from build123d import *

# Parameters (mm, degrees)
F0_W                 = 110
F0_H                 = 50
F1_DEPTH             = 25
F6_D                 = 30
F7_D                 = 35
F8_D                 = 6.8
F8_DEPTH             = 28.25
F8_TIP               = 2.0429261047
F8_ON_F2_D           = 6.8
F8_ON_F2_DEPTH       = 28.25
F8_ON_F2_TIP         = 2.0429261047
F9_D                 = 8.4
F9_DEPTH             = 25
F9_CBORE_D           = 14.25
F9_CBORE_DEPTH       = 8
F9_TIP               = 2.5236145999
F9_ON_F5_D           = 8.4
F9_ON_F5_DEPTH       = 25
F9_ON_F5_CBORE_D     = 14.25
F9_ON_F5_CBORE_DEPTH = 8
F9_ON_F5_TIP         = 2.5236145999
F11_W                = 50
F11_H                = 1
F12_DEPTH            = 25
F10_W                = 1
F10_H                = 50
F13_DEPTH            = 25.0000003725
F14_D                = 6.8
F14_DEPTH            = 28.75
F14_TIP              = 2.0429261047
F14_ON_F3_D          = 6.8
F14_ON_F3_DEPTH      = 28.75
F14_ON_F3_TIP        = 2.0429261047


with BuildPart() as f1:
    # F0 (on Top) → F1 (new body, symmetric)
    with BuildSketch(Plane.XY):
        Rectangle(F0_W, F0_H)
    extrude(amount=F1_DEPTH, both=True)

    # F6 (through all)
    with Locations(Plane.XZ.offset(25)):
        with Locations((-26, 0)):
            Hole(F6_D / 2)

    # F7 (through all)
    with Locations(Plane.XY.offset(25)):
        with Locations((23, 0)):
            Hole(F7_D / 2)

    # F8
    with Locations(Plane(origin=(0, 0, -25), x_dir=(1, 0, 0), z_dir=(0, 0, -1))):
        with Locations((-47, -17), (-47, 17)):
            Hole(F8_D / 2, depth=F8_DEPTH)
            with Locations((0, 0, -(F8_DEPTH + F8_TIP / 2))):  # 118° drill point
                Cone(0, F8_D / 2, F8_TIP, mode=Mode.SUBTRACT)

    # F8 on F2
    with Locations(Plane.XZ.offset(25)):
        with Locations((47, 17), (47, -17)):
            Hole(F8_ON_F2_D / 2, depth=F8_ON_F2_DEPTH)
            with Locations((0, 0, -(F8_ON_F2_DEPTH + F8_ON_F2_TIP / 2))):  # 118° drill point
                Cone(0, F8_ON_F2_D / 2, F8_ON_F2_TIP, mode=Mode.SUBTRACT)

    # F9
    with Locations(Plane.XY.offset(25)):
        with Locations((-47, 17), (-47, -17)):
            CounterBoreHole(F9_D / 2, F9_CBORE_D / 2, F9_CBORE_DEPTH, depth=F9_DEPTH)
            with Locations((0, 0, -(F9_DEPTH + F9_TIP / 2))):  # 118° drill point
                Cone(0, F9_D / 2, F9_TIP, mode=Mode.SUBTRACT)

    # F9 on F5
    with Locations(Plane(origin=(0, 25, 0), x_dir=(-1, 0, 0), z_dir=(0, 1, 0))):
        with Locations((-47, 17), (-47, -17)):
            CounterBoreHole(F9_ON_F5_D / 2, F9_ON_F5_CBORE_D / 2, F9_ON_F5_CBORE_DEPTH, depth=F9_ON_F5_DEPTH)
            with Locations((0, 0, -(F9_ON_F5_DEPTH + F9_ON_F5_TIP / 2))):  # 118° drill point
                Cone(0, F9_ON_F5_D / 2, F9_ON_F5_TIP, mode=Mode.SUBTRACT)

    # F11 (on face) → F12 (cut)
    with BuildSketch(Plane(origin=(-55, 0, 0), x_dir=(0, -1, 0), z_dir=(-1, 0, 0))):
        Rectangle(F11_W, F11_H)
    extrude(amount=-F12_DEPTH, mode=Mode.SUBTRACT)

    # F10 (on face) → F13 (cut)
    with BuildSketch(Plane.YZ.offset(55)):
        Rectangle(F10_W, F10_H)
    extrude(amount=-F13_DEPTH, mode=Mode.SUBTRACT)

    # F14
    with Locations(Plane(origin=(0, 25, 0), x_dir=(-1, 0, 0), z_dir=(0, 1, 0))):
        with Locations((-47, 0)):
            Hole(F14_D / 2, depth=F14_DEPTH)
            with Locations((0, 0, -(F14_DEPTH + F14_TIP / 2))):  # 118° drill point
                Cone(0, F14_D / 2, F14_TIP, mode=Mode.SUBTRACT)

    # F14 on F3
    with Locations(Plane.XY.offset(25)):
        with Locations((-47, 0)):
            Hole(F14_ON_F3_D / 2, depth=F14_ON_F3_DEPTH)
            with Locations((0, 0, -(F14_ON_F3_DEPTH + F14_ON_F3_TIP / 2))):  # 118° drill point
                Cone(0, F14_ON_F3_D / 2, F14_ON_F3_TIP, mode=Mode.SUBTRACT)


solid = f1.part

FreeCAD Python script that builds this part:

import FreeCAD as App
import Part
import Sketcher

V = App.Vector
Q = App.Units.Quantity


def add_polygon(sketch, points):
    """Adds a closed chain of lines whose ends are joined by coincident constraints."""
    first, n = sketch.GeometryCount, len(points)
    for a, b in zip(points, points[1:] + points[:1]):
        sketch.addGeometry(Part.LineSegment(App.Vector(*a, 0), App.Vector(*b, 0)), False)
    for i in range(n):
        sketch.addConstraint(Sketcher.Constraint("Coincident", first + i, 2, first + (i + 1) % n, 1))

doc = App.newDocument("Part")
body = doc.addObject("PartDesign::Body", "Body")

# Sketch on XY plane
sketch1 = body.newObject("Sketcher::SketchObject", "Sketch")
sketch1.AttachmentSupport = (doc.getObject("XY_Plane"), [""])
sketch1.MapMode = "FlatFace"
add_polygon(sketch1, [(-55, 25), (-55, -25), (55, -25), (55, 25)])  # lines 0-3
sketch1.addConstraint(Sketcher.Constraint("Vertical", 0))
sketch1.addConstraint(Sketcher.Constraint("Horizontal", 1))
sketch1.addConstraint(Sketcher.Constraint("Vertical", 2))
sketch1.addConstraint(Sketcher.Constraint("Horizontal", 3))
sketch1.addConstraint(Sketcher.Constraint("Symmetric", 0, 2, 2, 2, -1, 1))
sketch1.addConstraint(Sketcher.Constraint("DistanceX", 1, 1, 1, 2, Q("110 mm")))
sketch1.addConstraint(Sketcher.Constraint("DistanceY", 0, 2, 0, 1, Q("50 mm")))
pad1 = body.newObject("PartDesign::Pad", "Pad")
pad1.Profile = sketch1
pad1.Length = 50
pad1.Midplane = True

# Sketch on XZ plane
sketch2 = body.newObject("Sketcher::SketchObject", "Sketch001")
sketch2.AttachmentSupport = (doc.getObject("XZ_Plane"), [""])
sketch2.MapMode = "FlatFace"
sketch2.AttachmentOffset = App.Placement(V(0, 0, 25), App.Rotation())
sketch2.addGeometry(Part.Circle(V(-26, 0, 0), V(0, 0, 1), 15), False)
sketch2.addConstraint(Sketcher.Constraint("PointOnObject", 0, 3, -1))
sketch2.addConstraint(Sketcher.Constraint("Diameter", 0, Q("30 mm")))
sketch2.addConstraint(Sketcher.Constraint("DistanceX", 0, 3, -1, 1, Q("26 mm")))
doc.recompute()
hole = body.newObject("PartDesign::Hole", "Hole")
hole.Profile = sketch2
hole.ThreadType = "None"
hole.Diameter = 30
hole.DepthType = "ThroughAll"

# Sketch on XY plane
sketch3 = body.newObject("Sketcher::SketchObject", "Sketch002")
sketch3.AttachmentSupport = (doc.getObject("XY_Plane"), [""])
sketch3.MapMode = "FlatFace"
sketch3.AttachmentOffset = App.Placement(V(0, 0, 25), App.Rotation())
sketch3.addGeometry(Part.Circle(V(23, 0, 0), V(0, 0, 1), 18), False)
sketch3.addConstraint(Sketcher.Constraint("PointOnObject", 0, 3, -1))
sketch3.addConstraint(Sketcher.Constraint("Diameter", 0, Q("35 mm")))
sketch3.addConstraint(Sketcher.Constraint("DistanceX", -1, 1, 0, 3, Q("23 mm")))
doc.recompute()
hole2 = body.newObject("PartDesign::Hole", "Hole001")
hole2.Profile = sketch3
hole2.ThreadType = "None"
hole2.Diameter = 35
hole2.DepthType = "ThroughAll"

# Sketch on XY plane
sketch4 = body.newObject("Sketcher::SketchObject", "Sketch003")
sketch4.AttachmentSupport = (doc.getObject("XY_Plane"), [""])
sketch4.MapMode = "FlatFace"
sketch4.AttachmentOffset = App.Placement(V(0, 0, -25), App.Rotation())
sketch4.addGeometry(Part.Circle(V(-47, 17, 0), V(0, 0, 1), 3.4), False)
sketch4.addGeometry(Part.Circle(V(-47, -17, 0), V(0, 0, 1), 3.4), False)
sketch4.addConstraint(Sketcher.Constraint("Equal", 0, 1))
sketch4.addConstraint(Sketcher.Constraint("Symmetric", 0, 3, 1, 3, -1))
sketch4.addConstraint(Sketcher.Constraint("Diameter", 0, Q("6.8 mm")))
sketch4.addConstraint(Sketcher.Constraint("DistanceX", 0, 3, -1, 1, Q("47 mm")))
sketch4.addConstraint(Sketcher.Constraint("DistanceY", -1, 1, 0, 3, Q("17 mm")))
doc.recompute()
hole3 = body.newObject("PartDesign::Hole", "Hole002")
hole3.Profile = sketch4
hole3.ThreadType = "None"
hole3.Diameter = 6.8
hole3.DepthType = "Dimension"
hole3.Depth = 28.25
hole3.DrillPoint = "Angled"
hole3.DrillPointAngle = 118
hole3.Reversed = True

# Sketch on XZ plane
sketch5 = body.newObject("Sketcher::SketchObject", "Sketch004")
sketch5.AttachmentSupport = (doc.getObject("XZ_Plane"), [""])
sketch5.MapMode = "FlatFace"
sketch5.AttachmentOffset = App.Placement(V(0, 0, 25), App.Rotation())
sketch5.addGeometry(Part.Circle(V(47, 17, 0), V(0, 0, 1), 3.4), False)
sketch5.addGeometry(Part.Circle(V(47, -17, 0), V(0, 0, 1), 3.4), False)
sketch5.addConstraint(Sketcher.Constraint("Equal", 0, 1))
sketch5.addConstraint(Sketcher.Constraint("Symmetric", 0, 3, 1, 3, -1))
sketch5.addConstraint(Sketcher.Constraint("Diameter", 0, Q("6.8 mm")))
sketch5.addConstraint(Sketcher.Constraint("DistanceX", -1, 1, 0, 3, Q("47 mm")))
sketch5.addConstraint(Sketcher.Constraint("DistanceY", -1, 1, 0, 3, Q("17 mm")))
doc.recompute()
hole4 = body.newObject("PartDesign::Hole", "Hole003")
hole4.Profile = sketch5
hole4.ThreadType = "None"
hole4.Diameter = 6.8
hole4.DepthType = "Dimension"
hole4.Depth = 28.25
hole4.DrillPoint = "Angled"
hole4.DrillPointAngle = 118

# Sketch on XY plane
sketch6 = body.newObject("Sketcher::SketchObject", "Sketch005")
sketch6.AttachmentSupport = (doc.getObject("XY_Plane"), [""])
sketch6.MapMode = "FlatFace"
sketch6.AttachmentOffset = App.Placement(V(0, 0, 25), App.Rotation())
sketch6.addGeometry(Part.Circle(V(-47, 17, 0), V(0, 0, 1), 4.2), False)
sketch6.addGeometry(Part.Circle(V(-47, -17, 0), V(0, 0, 1), 4.2), False)
sketch6.addConstraint(Sketcher.Constraint("Equal", 0, 1))
sketch6.addConstraint(Sketcher.Constraint("Symmetric", 0, 3, 1, 3, -1))
sketch6.addConstraint(Sketcher.Constraint("Diameter", 0, Q("8.4 mm")))
sketch6.addConstraint(Sketcher.Constraint("DistanceX", 0, 3, -1, 1, Q("47 mm")))
sketch6.addConstraint(Sketcher.Constraint("DistanceY", -1, 1, 0, 3, Q("17 mm")))
doc.recompute()
hole5 = body.newObject("PartDesign::Hole", "Hole004")
hole5.Profile = sketch6
hole5.ThreadType = "None"
hole5.Diameter = 8.4
hole5.DepthType = "Dimension"
hole5.Depth = 25
hole5.DrillPoint = "Angled"
hole5.DrillPointAngle = 118
hole5.HoleCutType = "Counterbore"
hole5.HoleCutDiameter = 14.25
hole5.HoleCutDepth = 8

# Sketch on XZ plane
sketch7 = body.newObject("Sketcher::SketchObject", "Sketch006")
sketch7.AttachmentSupport = (doc.getObject("XZ_Plane"), [""])
sketch7.MapMode = "FlatFace"
sketch7.AttachmentOffset = App.Placement(V(0, 0, -25), App.Rotation())
sketch7.addGeometry(Part.Circle(V(47, 17, 0), V(0, 0, 1), 4.2), False)
sketch7.addGeometry(Part.Circle(V(47, -17, 0), V(0, 0, 1), 4.2), False)
sketch7.addConstraint(Sketcher.Constraint("Equal", 0, 1))
sketch7.addConstraint(Sketcher.Constraint("Symmetric", 0, 3, 1, 3, -1))
sketch7.addConstraint(Sketcher.Constraint("Diameter", 0, Q("8.4 mm")))
sketch7.addConstraint(Sketcher.Constraint("DistanceX", -1, 1, 0, 3, Q("47 mm")))
sketch7.addConstraint(Sketcher.Constraint("DistanceY", -1, 1, 0, 3, Q("17 mm")))
doc.recompute()
hole6 = body.newObject("PartDesign::Hole", "Hole005")
hole6.Profile = sketch7
hole6.ThreadType = "None"
hole6.Diameter = 8.4
hole6.DepthType = "Dimension"
hole6.Depth = 25
hole6.DrillPoint = "Angled"
hole6.DrillPointAngle = 118
hole6.HoleCutType = "Counterbore"
hole6.HoleCutDiameter = 14.25
hole6.HoleCutDepth = 8
hole6.Reversed = True

# Sketch on YZ plane
sketch8 = body.newObject("Sketcher::SketchObject", "Sketch007")
sketch8.AttachmentSupport = (doc.getObject("YZ_Plane"), [""])
sketch8.MapMode = "FlatFace"
sketch8.AttachmentOffset = App.Placement(V(0, 0, -55), App.Rotation())
add_polygon(sketch8, [(25, 0.5), (25, -0.5), (-25, -0.5), (-25, 0.5)])  # lines 0-3
sketch8.addConstraint(Sketcher.Constraint("Vertical", 0))
sketch8.addConstraint(Sketcher.Constraint("Horizontal", 1))
sketch8.addConstraint(Sketcher.Constraint("Vertical", 2))
sketch8.addConstraint(Sketcher.Constraint("Horizontal", 3))
sketch8.addConstraint(Sketcher.Constraint("Symmetric", 0, 2, 2, 2, -1, 1))
sketch8.addConstraint(Sketcher.Constraint("DistanceX", 1, 2, 1, 1, Q("50 mm")))
sketch8.addConstraint(Sketcher.Constraint("DistanceY", 0, 2, 0, 1, Q("1 mm")))
pocket1 = body.newObject("PartDesign::Pocket", "Pocket")
pocket1.Profile = sketch8
pocket1.Length = 25
pocket1.Reversed = True

# Sketch on YZ plane
sketch9 = body.newObject("Sketcher::SketchObject", "Sketch008")
sketch9.AttachmentSupport = (doc.getObject("YZ_Plane"), [""])
sketch9.MapMode = "FlatFace"
sketch9.AttachmentOffset = App.Placement(V(0, 0, 55), App.Rotation())
add_polygon(sketch9, [(-0.5, 25), (-0.5, -25), (0.5, -25), (0.5, 25)])  # lines 0-3
sketch9.addConstraint(Sketcher.Constraint("Vertical", 0))
sketch9.addConstraint(Sketcher.Constraint("Horizontal", 1))
sketch9.addConstraint(Sketcher.Constraint("Vertical", 2))
sketch9.addConstraint(Sketcher.Constraint("Horizontal", 3))
sketch9.addConstraint(Sketcher.Constraint("Symmetric", 0, 2, 2, 2, -1, 1))
sketch9.addConstraint(Sketcher.Constraint("DistanceX", 1, 1, 1, 2, Q("1 mm")))
sketch9.addConstraint(Sketcher.Constraint("DistanceY", 0, 2, 0, 1, Q("50 mm")))
pocket2 = body.newObject("PartDesign::Pocket", "Pocket001")
pocket2.Profile = sketch9
pocket2.Length = 25

# Sketch on XZ plane
sketch10 = body.newObject("Sketcher::SketchObject", "Sketch009")
sketch10.AttachmentSupport = (doc.getObject("XZ_Plane"), [""])
sketch10.MapMode = "FlatFace"
sketch10.AttachmentOffset = App.Placement(V(0, 0, -25), App.Rotation())
sketch10.addGeometry(Part.Circle(V(47, 0, 0), V(0, 0, 1), 3.4), False)
sketch10.addConstraint(Sketcher.Constraint("PointOnObject", 0, 3, -1))
sketch10.addConstraint(Sketcher.Constraint("Diameter", 0, Q("6.8 mm")))
sketch10.addConstraint(Sketcher.Constraint("DistanceX", -1, 1, 0, 3, Q("47 mm")))
doc.recompute()
hole7 = body.newObject("PartDesign::Hole", "Hole006")
hole7.Profile = sketch10
hole7.ThreadType = "None"
hole7.Diameter = 6.8
hole7.DepthType = "Dimension"
hole7.Depth = 28.75
hole7.DrillPoint = "Angled"
hole7.DrillPointAngle = 118
hole7.Reversed = True

# Sketch on XY plane
sketch11 = body.newObject("Sketcher::SketchObject", "Sketch010")
sketch11.AttachmentSupport = (doc.getObject("XY_Plane"), [""])
sketch11.MapMode = "FlatFace"
sketch11.AttachmentOffset = App.Placement(V(0, 0, 25), App.Rotation())
sketch11.addGeometry(Part.Circle(V(-47, 0, 0), V(0, 0, 1), 3.4), False)
sketch11.addConstraint(Sketcher.Constraint("PointOnObject", 0, 3, -1))
sketch11.addConstraint(Sketcher.Constraint("Diameter", 0, Q("6.8 mm")))
sketch11.addConstraint(Sketcher.Constraint("DistanceX", 0, 3, -1, 1, Q("47 mm")))
doc.recompute()
hole8 = body.newObject("PartDesign::Hole", "Hole007")
hole8.Profile = sketch11
hole8.ThreadType = "None"
hole8.Diameter = 6.8
hole8.DepthType = "Dimension"
hole8.Depth = 28.75
hole8.DrillPoint = "Angled"
hole8.DrillPointAngle = 118

doc.recompute()
